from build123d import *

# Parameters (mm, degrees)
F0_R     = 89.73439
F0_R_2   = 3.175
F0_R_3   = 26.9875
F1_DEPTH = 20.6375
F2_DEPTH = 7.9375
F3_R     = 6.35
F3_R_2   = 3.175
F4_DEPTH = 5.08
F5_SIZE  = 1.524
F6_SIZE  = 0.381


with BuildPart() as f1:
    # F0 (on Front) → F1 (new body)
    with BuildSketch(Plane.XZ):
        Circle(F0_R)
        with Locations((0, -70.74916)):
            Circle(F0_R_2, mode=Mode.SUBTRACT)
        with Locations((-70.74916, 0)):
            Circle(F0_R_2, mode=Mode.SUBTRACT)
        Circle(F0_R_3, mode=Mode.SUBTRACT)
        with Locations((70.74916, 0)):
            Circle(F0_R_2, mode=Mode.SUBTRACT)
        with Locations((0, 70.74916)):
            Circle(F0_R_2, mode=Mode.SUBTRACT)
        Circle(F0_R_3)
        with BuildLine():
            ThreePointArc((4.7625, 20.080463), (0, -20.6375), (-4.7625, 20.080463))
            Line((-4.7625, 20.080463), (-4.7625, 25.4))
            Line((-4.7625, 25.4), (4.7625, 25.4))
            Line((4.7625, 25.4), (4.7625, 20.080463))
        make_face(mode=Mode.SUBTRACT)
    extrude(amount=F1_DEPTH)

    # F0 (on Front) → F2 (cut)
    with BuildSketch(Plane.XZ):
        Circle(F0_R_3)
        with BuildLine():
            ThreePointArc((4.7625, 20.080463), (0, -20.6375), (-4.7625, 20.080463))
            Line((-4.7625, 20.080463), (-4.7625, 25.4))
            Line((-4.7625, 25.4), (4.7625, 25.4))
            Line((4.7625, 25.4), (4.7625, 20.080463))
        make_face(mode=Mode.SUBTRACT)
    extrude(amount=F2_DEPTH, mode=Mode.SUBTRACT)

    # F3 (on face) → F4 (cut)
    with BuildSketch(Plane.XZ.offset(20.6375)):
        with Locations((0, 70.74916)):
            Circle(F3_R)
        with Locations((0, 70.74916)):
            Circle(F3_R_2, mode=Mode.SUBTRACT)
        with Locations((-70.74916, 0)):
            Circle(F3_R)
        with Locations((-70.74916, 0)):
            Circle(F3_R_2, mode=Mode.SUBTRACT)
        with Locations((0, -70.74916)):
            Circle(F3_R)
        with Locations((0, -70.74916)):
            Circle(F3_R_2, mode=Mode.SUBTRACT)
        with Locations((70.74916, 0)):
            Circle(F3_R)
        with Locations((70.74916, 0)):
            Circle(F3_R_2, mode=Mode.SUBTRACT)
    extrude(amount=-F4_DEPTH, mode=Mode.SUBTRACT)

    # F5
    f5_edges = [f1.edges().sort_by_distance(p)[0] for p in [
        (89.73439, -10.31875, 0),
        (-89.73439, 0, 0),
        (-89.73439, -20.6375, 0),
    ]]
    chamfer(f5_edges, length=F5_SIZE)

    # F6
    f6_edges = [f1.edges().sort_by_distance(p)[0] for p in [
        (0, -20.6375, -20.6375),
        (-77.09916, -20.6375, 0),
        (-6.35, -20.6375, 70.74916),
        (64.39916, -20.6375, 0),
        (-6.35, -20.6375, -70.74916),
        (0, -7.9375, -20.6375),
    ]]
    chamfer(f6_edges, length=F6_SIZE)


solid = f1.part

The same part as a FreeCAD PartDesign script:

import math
import FreeCAD as App
import Part
import Sketcher
Q = App.Units.Quantity


def edges_at(feature, points):
    """Names of the edges that pass closest to the given points."""
    edges = feature.Shape.Edges
    near = lambda p: min(range(len(edges)), key=lambda i: edges[i].distToShape(Part.Vertex(*p))[0])
    return sorted({f"Edge{near(p) + 1}" for p in points})

doc = App.newDocument("Part")
body = doc.addObject("PartDesign::Body", "Body")

# Sketch on XZ plane
sketch1 = body.newObject("Sketcher::SketchObject", "Sketch")
sketch1.AttachmentSupport = (doc.getObject("XZ_Plane"), [""])
sketch1.MapMode = "FlatFace"
sketch1.addGeometry([
    Part.Circle(App.Vector(0, 0, 0), App.Vector(0, 0, 1), 89.73439),  # 0
    Part.Circle(App.Vector(0, -70.74916, 0), App.Vector(0, 0, 1), 3.175),  # 1
    Part.Circle(App.Vector(-70.74916, 0, 0), App.Vector(0, 0, 1), 3.175),  # 2
    Part.LineSegment(App.Vector(4.7625, 25.4, 0), App.Vector(4.7625, 20.080463, 0)),  # 3
    Part.ArcOfCircle(Part.Circle(App.Vector(0, 0, 0), App.Vector(0, 0, 1), 20.6375), math.radians(103.342364), math.radians(436.657636)),  # 4
    Part.LineSegment(App.Vector(-4.7625, 20.080463, 0), App.Vector(-4.7625, 25.4, 0)),  # 5
    Part.LineSegment(App.Vector(-4.7625, 25.4, 0), App.Vector(4.7625, 25.4, 0)),  # 6
    Part.Circle(App.Vector(70.74916, 0, 0), App.Vector(0, 0, 1), 3.175),  # 7
    Part.Circle(App.Vector(0, 70.74916, 0), App.Vector(0, 0, 1), 3.175),  # 8
], False)
sketch1.addConstraint([
    Sketcher.Constraint("Coincident", 3, 2, 4, 2),
    Sketcher.Constraint("Coincident", 4, 1, 5, 1),
    Sketcher.Constraint("Coincident", 5, 2, 6, 1),
    Sketcher.Constraint("Coincident", 6, 2, 3, 1),
    Sketcher.Constraint("Vertical", 3),
    Sketcher.Constraint("Vertical", 5),
    Sketcher.Constraint("Horizontal", 6),
    Sketcher.Constraint("Coincident", 0, 3, -1, 1),
    Sketcher.Constraint("Coincident", 4, 3, -1, 1),
    Sketcher.Constraint("Equal", 1, 2),
    Sketcher.Constraint("Equal", 2, 7),
    Sketcher.Constraint("Equal", 7, 8),
    Sketcher.Constraint("Symmetric", 2, 3, 7, 3, -1, 1),
    Sketcher.Constraint("Symmetric", 1, 3, 8, 3, -1, 1),
    Sketcher.Constraint("PointOnObject", 1, 3, -2),
    Sketcher.Constraint("PointOnObject", 2, 3, -1),
    Sketcher.Constraint("Horizontal", 3, 2, 4, 1),
    Sketcher.Constraint("Diameter", 1, Q("0.25 in")),
    Sketcher.Constraint("DistanceY", -1, 1, 5, 2, Q("1 in")),
    Sketcher.Constraint("Radius", 4, Q("0.8125 in")),
    Sketcher.Constraint("Diameter", 0, Q("7.0657 in")),
    Sketcher.Constraint("DistanceX", 6, 1, 6, 2, Q("0.375 in")),
    Sketcher.Constraint("DistanceY", 1, 3, -1, 1, Q("2.7854 in")),
    Sketcher.Constraint("DistanceX", 2, 3, -1, 1, Q("2.7854 in")),
])
pad1 = body.newObject("PartDesign::Pad", "Pad")
pad1.Profile = sketch1
pad1.Length = Q("0.8125 in")

# Sketch on XZ plane
sketch2 = body.newObject("Sketcher::SketchObject", "Sketch001")
sketch2.AttachmentSupport = (doc.getObject("XZ_Plane"), [""])
sketch2.MapMode = "FlatFace"
sketch2.addGeometry([
    Part.Circle(App.Vector(0, 0, 0), App.Vector(0, 0, 1), 26.9875),  # 0
    Part.LineSegment(App.Vector(4.7625, 25.4, 0), App.Vector(4.7625, 20.080463, 0)),  # 1
    Part.ArcOfCircle(Part.Circle(App.Vector(0, 0, 0), App.Vector(0, 0, 1), 20.6375), math.radians(103.342364), math.radians(436.657636)),  # 2
    Part.LineSegment(App.Vector(-4.7625, 20.080463, 0), App.Vector(-4.7625, 25.4, 0)),  # 3
    Part.LineSegment(App.Vector(-4.7625, 25.4, 0), App.Vector(4.7625, 25.4, 0)),  # 4
], False)
sketch2.addConstraint([
    Sketcher.Constraint("Coincident", 1, 2, 2, 2),
    Sketcher.Constraint("Coincident", 2, 1, 3, 1),
    Sketcher.Constraint("Coincident", 3, 2, 4, 1),
    Sketcher.Constraint("Coincident", 4, 2, 1, 1),
    Sketcher.Constraint("Vertical", 1),
    Sketcher.Constraint("Vertical", 3),
    Sketcher.Constraint("Horizontal", 4),
    Sketcher.Constraint("Coincident", 0, 3, -1, 1),
    Sketcher.Constraint("Coincident", 2, 3, -1, 1),
    Sketcher.Constraint("Horizontal", 1, 2, 2, 1),
    Sketcher.Constraint("Diameter", 0, Q("2.125 in")),
    Sketcher.Constraint("DistanceY", -1, 1, 3, 2, Q("1 in")),
    Sketcher.Constraint("Radius", 2, Q("0.8125 in")),
    Sketcher.Constraint("DistanceX", 4, 1, 4, 2, Q("0.375 in")),
])
pocket1 = body.newObject("PartDesign::Pocket", "Pocket")
pocket1.Profile = sketch2
pocket1.Length = Q("0.3125 in")
pocket1.Reversed = True

# Sketch on XZ plane
sketch3 = body.newObject("Sketcher::SketchObject", "Sketch002")
sketch3.AttachmentSupport = (doc.getObject("XZ_Plane"), [""])
sketch3.MapMode = "FlatFace"
sketch3.AttachmentOffset = App.Placement(App.Vector(0, 0, 0.8125 * 25.4), App.Rotation())
sketch3.addGeometry([
    Part.Circle(App.Vector(0, 70.74916, 0), App.Vector(0, 0, 1), 6.35),  # 0
    Part.Circle(App.Vector(0, 70.74916, 0), App.Vector(0, 0, 1), 3.175),  # 1
    Part.Circle(App.Vector(-70.74916, 0, 0), App.Vector(0, 0, 1), 6.35),  # 2
    Part.Circle(App.Vector(-70.74916, 0, 0), App.Vector(0, 0, 1), 3.175),  # 3
    Part.Circle(App.Vector(0, -70.74916, 0), App.Vector(0, 0, 1), 6.35),  # 4
    Part.Circle(App.Vector(0, -70.74916, 0), App.Vector(0, 0, 1), 3.175),  # 5
    Part.Circle(App.Vector(70.74916, 0, 0), App.Vector(0, 0, 1), 6.35),  # 6
    Part.Circle(App.Vector(70.74916, 0, 0), App.Vector(0, 0, 1), 3.175),  # 7
], False)
sketch3.addConstraint([
    Sketcher.Constraint("Coincident", 1, 3, 0, 3),
    Sketcher.Constraint("Coincident", 3, 3, 2, 3),
    Sketcher.Constraint("Coincident", 5, 3, 4, 3),
    Sketcher.Constraint("Coincident", 7, 3, 6, 3),
    Sketcher.Constraint("Equal", 0, 2),
    Sketcher.Constraint("Equal", 1, 3),
    Sketcher.Constraint("Equal", 2, 4),
    Sketcher.Constraint("Equal", 3, 5),
    Sketcher.Constraint("Equal", 4, 6),
    Sketcher.Constraint("Equal", 5, 7),
    Sketcher.Constraint("Symmetric", 0, 3, 4, 3, -1, 1),
    Sketcher.Constraint("Symmetric", 2, 3, 6, 3, -1, 1),
    Sketcher.Constraint("PointOnObject", 0, 3, -2),
    Sketcher.Constraint("PointOnObject", 2, 3, -1),
    Sketcher.Constraint("Diameter", 0, Q("0.5 in")),
    Sketcher.Constraint("Diameter", 1, Q("0.25 in")),
    Sketcher.Constraint("DistanceY", -1, 1, 0, 3, Q("2.7854 in")),
    Sketcher.Constraint("DistanceX", 2, 3, -1, 1, Q("2.7854 in")),
])
pocket2 = body.newObject("PartDesign::Pocket", "Pocket001")
pocket2.Profile = sketch3
pocket2.Length = Q("0.2 in")
doc.recompute()

chamfer = body.newObject("PartDesign::Chamfer", "Chamfer")
chamfer.Base = (pocket2, edges_at(pocket2, [(89.734, -10.319, 0), (-89.734, 0, 0), (-89.734, -20.637, 0)]))
chamfer.Size = Q("0.06 in")
doc.recompute()

chamfer2 = body.newObject("PartDesign::Chamfer", "Chamfer001")
chamfer2.Base = (chamfer, edges_at(chamfer, [
    (0, -20.637, -20.637),
    (-77.099, -20.637, 0),
    (-6.35, -20.637, 70.749),
    (64.399, -20.637, 0),
    (-6.35, -20.637, -70.749),
    (0, -7.938, -20.637),
]))
chamfer2.Size = Q("0.015 in")

doc.recompute()
